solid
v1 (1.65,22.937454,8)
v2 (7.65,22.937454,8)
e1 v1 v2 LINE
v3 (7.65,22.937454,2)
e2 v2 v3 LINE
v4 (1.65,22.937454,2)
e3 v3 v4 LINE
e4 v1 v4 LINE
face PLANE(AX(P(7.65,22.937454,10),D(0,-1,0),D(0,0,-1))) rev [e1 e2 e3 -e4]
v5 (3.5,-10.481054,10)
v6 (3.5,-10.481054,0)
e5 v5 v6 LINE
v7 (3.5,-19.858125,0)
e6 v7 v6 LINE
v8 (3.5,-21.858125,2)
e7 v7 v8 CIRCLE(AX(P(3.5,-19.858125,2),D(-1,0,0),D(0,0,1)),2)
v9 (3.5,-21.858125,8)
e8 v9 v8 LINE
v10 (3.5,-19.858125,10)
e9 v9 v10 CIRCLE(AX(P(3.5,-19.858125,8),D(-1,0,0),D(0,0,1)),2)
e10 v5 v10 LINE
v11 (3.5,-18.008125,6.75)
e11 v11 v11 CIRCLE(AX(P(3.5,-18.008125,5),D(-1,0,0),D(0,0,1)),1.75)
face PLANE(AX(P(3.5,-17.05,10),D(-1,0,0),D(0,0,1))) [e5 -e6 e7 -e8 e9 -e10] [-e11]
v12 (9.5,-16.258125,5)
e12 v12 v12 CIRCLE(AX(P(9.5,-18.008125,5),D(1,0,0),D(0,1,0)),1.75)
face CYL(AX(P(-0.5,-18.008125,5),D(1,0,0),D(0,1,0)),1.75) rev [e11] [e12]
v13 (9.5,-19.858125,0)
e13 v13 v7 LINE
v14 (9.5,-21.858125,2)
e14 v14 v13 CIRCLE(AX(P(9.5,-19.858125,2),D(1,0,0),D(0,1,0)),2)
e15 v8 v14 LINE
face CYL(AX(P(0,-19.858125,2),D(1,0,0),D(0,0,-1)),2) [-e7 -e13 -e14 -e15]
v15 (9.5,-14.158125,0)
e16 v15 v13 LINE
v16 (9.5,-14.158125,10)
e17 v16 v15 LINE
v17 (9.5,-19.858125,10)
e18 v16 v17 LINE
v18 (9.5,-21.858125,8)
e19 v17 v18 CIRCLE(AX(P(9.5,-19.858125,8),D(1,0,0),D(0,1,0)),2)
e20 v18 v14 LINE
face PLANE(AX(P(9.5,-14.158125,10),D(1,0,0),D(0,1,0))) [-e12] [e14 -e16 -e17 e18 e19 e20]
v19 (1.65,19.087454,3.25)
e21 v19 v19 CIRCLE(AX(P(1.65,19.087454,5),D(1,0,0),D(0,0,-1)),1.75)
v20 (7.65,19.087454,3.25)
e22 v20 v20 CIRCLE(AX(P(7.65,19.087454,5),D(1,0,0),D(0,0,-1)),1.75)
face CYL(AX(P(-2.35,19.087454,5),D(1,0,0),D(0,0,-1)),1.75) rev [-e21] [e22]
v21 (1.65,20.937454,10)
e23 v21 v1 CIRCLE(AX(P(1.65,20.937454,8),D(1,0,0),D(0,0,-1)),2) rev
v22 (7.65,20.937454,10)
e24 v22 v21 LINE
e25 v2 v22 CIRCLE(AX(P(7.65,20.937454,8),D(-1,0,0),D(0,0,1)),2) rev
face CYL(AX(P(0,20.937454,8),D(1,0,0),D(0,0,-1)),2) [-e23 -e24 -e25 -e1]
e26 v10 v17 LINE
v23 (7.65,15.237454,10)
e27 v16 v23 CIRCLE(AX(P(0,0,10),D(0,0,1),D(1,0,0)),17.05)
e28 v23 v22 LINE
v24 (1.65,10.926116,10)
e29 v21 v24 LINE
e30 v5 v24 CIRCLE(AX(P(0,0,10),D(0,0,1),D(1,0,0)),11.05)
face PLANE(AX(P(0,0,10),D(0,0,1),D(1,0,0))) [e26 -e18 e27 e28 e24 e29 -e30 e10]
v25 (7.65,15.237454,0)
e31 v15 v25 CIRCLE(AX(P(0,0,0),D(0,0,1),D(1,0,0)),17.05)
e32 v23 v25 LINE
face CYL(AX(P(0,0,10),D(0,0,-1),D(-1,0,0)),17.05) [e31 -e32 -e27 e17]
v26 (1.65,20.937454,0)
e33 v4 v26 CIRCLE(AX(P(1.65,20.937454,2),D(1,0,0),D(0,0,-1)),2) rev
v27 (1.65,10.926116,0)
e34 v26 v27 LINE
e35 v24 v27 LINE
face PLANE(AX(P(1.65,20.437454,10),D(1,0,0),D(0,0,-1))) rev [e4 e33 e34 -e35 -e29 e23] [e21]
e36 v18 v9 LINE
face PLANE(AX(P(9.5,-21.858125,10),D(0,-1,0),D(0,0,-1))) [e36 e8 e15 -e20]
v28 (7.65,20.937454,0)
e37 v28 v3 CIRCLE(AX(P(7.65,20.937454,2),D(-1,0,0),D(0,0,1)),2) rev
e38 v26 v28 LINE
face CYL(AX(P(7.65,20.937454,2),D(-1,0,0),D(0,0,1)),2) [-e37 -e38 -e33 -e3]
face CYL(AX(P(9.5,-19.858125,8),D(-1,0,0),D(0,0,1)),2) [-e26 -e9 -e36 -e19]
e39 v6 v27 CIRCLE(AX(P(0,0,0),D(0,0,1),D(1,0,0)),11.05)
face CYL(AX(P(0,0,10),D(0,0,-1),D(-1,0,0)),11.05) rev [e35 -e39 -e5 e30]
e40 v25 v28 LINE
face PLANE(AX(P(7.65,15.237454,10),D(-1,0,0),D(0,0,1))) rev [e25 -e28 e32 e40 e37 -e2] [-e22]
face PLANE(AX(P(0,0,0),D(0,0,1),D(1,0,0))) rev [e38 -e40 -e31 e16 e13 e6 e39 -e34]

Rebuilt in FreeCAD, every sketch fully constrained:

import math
import FreeCAD as App
import Part
import Sketcher
from FreeCAD import Vector
Q = App.Units.Quantity


def edges_at(feature, points):
    """Names of the edges that pass closest to the given points."""
    edges = feature.Shape.Edges
    near = lambda p: min(range(len(edges)), key=lambda i: edges[i].distToShape(Part.Vertex(*p))[0])
    return sorted({f"Edge{near(p) + 1}" for p in points})

doc = App.newDocument("Part")
body = doc.addObject("PartDesign::Body", "Body")

sketch1 = body.newObject("Sketcher::SketchObject", "Sketch")
sketch1.AttachmentSupport = (doc.getObject("XY_Plane"), [""])
sketch1.MapMode = "FlatFace"
sketch1.addGeometry([
    Part.ArcOfCircle(Part.Circle(Vector(0, 0, 0), Vector(0, 0, 1), 11.05), math.radians(-71.533986), math.radians(81.412405)),
    Part.LineSegment(Vector(3.5, -10.481054, 0), Vector(3.5, -21.858125, 0)),
    Part.LineSegment(Vector(3.5, -21.858125, 0), Vector(9.5, -21.858125, 0)),
    Part.LineSegment(Vector(9.5, -21.858125, 0), Vector(9.5, -14.158125, 0)),
    Part.ArcOfCircle(Part.Circle(Vector(0, 0, 0), Vector(0, 0, 1), 17.05), math.radians(-56.138673), math.radians(63.340952)),
    Part.LineSegment(Vector(7.65, 15.237454, 0), Vector(7.65, 22.937454, 0)),
    Part.LineSegment(Vector(7.65, 22.937454, 0), Vector(1.65, 22.937454, 0)),
    Part.LineSegment(Vector(1.65, 22.937454, 0), Vector(1.65, 10.926116, 0)),
], False)
sketch1.addConstraint([
    Sketcher.Constraint("Coincident", 0, 1, 1, 1),
    Sketcher.Constraint("Coincident", 1, 2, 2, 1),
    Sketcher.Constraint("Coincident", 2, 2, 3, 1),
    Sketcher.Constraint("Coincident", 3, 2, 4, 1),
    Sketcher.Constraint("Coincident", 4, 2, 5, 1),
    Sketcher.Constraint("Coincident", 5, 2, 6, 1),
    Sketcher.Constraint("Coincident", 6, 2, 7, 1),
    Sketcher.Constraint("Coincident", 7, 2, 0, 2),
    Sketcher.Constraint("Vertical", 1),
    Sketcher.Constraint("Horizontal", 2),
    Sketcher.Constraint("Vertical", 3),
    Sketcher.Constraint("Vertical", 5),
    Sketcher.Constraint("Horizontal", 6),
    Sketcher.Constraint("Vertical", 7),
    Sketcher.Constraint("Coincident", 0, 3, -1, 1),
    Sketcher.Constraint("Coincident", 4, 3, -1, 1),
    Sketcher.Constraint("Equal", 2, 6),
    Sketcher.Constraint("Equal", 3, 5),
    Sketcher.Constraint("DistanceX", 2, 1, 2, 2, Q("6 mm")),
    Sketcher.Constraint("Radius", 0, Q("11.05 mm")),
    Sketcher.Constraint("Radius", 4, Q("17.05 mm")),
    Sketcher.Constraint("DistanceY", 3, 1, 3, 2, Q("7.7 mm")),
    Sketcher.Constraint("DistanceX", -1, 1, 0, 1, Q("3.5 mm")),
    Sketcher.Constraint("DistanceX", -1, 1, 4, 2, Q("7.65 mm")),
])
pad1 = body.newObject("PartDesign::Pad", "Pad")
pad1.Profile = sketch1
pad1.Length = 10

sketch2 = body.newObject("Sketcher::SketchObject", "Sketch001")
sketch2.AttachmentSupport = (doc.getObject("YZ_Plane"), [""])
sketch2.MapMode = "FlatFace"
sketch2.AttachmentOffset = App.Placement(Vector(0, 0, 9.5), App.Rotation())
sketch2.addGeometry(Part.Circle(Vector(-18.008125, 5, 0), Vector(0, 0, 1), 1.75), False)
sketch2.addConstraint([
    Sketcher.Constraint("Diameter", 0, Q("3.5 mm")),
    Sketcher.Constraint("DistanceY", -1, 1, 0, 3, Q("5 mm")),
    Sketcher.Constraint("DistanceX", 0, 3, -1, 1, Q("18.008125 mm")),
])
pocket1 = body.newObject("PartDesign::Pocket", "Pocket")
pocket1.Profile = sketch2
pocket1.Length = 10

sketch3 = body.newObject("Sketcher::SketchObject", "Sketch002")
sketch3.AttachmentSupport = (doc.getObject("YZ_Plane"), [""])
sketch3.MapMode = "FlatFace"
sketch3.AttachmentOffset = App.Placement(Vector(0, 0, 7.65), App.Rotation())
sketch3.addGeometry(Part.Circle(Vector(19.087454, 5, 0), Vector(0, 0, 1), 1.75), False)
sketch3.addConstraint([
    Sketcher.Constraint("Diameter", 0, Q("3.5 mm")),
    Sketcher.Constraint("DistanceY", -1, 1, 0, 3, Q("5 mm")),
    Sketcher.Constraint("DistanceX", -1, 1, 0, 3, Q("19.087454 mm")),
])
pocket2 = body.newObject("PartDesign::Pocket", "Pocket001")
pocket2.Profile = sketch3
pocket2.Length = 10
doc.recompute()

fillet = body.newObject("PartDesign::Fillet", "Fillet")
fillet.Base = (pocket2, edges_at(pocket2, [
    (4.65, 22.937, 0),
    (6.5, -21.858, 10),
    (6.5, -21.858, 0),
    (4.65, 22.937, 10),
]))
fillet.Radius = 2

doc.recompute()
